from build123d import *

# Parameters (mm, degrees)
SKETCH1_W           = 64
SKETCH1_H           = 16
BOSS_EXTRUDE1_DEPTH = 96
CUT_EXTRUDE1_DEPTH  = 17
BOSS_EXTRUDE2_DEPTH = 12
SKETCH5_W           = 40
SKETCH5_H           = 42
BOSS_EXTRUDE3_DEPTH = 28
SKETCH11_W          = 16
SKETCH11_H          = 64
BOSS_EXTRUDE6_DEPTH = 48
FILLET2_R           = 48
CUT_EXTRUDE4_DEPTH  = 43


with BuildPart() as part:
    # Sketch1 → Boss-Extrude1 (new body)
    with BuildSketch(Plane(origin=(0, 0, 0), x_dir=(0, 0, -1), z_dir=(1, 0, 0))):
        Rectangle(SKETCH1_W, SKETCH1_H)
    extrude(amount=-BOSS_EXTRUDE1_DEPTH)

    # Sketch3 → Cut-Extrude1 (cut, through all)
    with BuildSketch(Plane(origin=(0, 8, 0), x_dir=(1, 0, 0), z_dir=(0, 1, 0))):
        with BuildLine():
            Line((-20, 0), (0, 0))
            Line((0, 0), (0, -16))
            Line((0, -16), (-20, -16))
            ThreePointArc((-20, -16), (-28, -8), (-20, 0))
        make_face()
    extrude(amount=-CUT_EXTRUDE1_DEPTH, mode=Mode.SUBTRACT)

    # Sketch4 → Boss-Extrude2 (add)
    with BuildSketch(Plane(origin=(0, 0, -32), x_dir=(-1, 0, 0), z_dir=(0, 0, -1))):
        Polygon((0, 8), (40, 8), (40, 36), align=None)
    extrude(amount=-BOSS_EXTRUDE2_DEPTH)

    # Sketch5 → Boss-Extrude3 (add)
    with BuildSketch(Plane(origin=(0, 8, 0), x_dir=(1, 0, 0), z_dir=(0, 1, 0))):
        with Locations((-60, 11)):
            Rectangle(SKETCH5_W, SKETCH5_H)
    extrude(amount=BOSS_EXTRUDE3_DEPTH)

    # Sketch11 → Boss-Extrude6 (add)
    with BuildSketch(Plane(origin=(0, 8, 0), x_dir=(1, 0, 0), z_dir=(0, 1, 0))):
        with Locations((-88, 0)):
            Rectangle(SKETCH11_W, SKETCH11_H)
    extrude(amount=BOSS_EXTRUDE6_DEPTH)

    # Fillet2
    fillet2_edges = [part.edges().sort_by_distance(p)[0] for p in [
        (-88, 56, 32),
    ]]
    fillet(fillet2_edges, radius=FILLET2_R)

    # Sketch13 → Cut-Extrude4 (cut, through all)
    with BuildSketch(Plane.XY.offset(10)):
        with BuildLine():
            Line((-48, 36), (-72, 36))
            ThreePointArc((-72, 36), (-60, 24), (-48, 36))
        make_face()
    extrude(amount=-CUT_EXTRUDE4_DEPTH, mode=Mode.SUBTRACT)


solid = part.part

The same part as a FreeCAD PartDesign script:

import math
import FreeCAD as App
import Part
import Sketcher
from FreeCAD import Vector


def edges_at(feature, points):
    """Names of the edges that pass closest to the given points."""
    edges = feature.Shape.Edges
    near = lambda p: min(range(len(edges)), key=lambda i: edges[i].distToShape(Part.Vertex(*p))[0])
    return sorted({f"Edge{near(p) + 1}" for p in points})


def add_polygon(sketch, points):
    """Adds a closed chain of lines whose ends are joined by coincident constraints."""
    first, n = sketch.GeometryCount, len(points)
    for a, b in zip(points, points[1:] + points[:1]):
        sketch.addGeometry(Part.LineSegment(App.Vector(*a, 0), App.Vector(*b, 0)), False)
    for i in range(n):
        sketch.addConstraint(Sketcher.Constraint("Coincident", first + i, 2, first + (i + 1) % n, 1))

doc = App.newDocument("Part")
body = doc.addObject("PartDesign::Body", "Body")

sketch1 = doc.addObject("Sketcher::SketchObject", "Sketch")
body.addObject(sketch1)
sketch1.AttachmentSupport = (doc.YZ_Plane, [""])
sketch1.MapMode = "FlatFace"
add_polygon(sketch1, [(8, 32), (-8, 32), (-8, -32), (8, -32)])
sketch1.addConstraint([
    Sketcher.Constraint("Horizontal", 0),
    Sketcher.Constraint("Vertical", 1),
    Sketcher.Constraint("Horizontal", 2),
    Sketcher.Constraint("Vertical", 3),
    Sketcher.Constraint("Symmetric", 0, 2, 2, 2, -1, 1),
    Sketcher.Constraint("DistanceX", 0, 2, 0, 1, 16.0),
    Sketcher.Constraint("DistanceY", 1, 2, 1, 1, 64.0),
])
pad1 = doc.addObject("PartDesign::Pad", "Pad")
body.addObject(pad1)
pad1.Profile = sketch1
pad1.Length = 96
pad1.Reversed = True

sketch2 = doc.addObject("Sketcher::SketchObject", "Sketch001")
body.addObject(sketch2)
sketch2.AttachmentSupport = (doc.XZ_Plane, [""])
sketch2.MapMode = "FlatFace"
sketch2.AttachmentOffset = App.Placement(Vector(0, 0, -8), App.Rotation())
sketch2.addGeometry([
    Part.LineSegment(Vector(0, 0, 0), Vector(-20, 0, 0)),
    Part.ArcOfCircle(Part.Circle(Vector(-20, 8, 0), Vector(0, 0, 1), 8), math.radians(90), math.radians(270)),
    Part.LineSegment(Vector(-20, 16, 0), Vector(0, 16, 0)),
    Part.LineSegment(Vector(0, 16, 0), Vector(0, 0, 0)),
], False)
sketch2.addConstraint([
    Sketcher.Constraint("Tangent", 0, 2, 1, 2),
    Sketcher.Constraint("Tangent", 1, 1, 2, 1),
    Sketcher.Constraint("Coincident", 2, 2, 3, 1),
    Sketcher.Constraint("Coincident", 3, 2, 0, 1),
    Sketcher.Constraint("Horizontal", 0),
    Sketcher.Constraint("Horizontal", 2),
    Sketcher.Constraint("Vertical", 3),
    Sketcher.Constraint("Coincident", 3, 2, -1, 1),
    Sketcher.Constraint("Radius", 1, 8.0),
    Sketcher.Constraint("DistanceX", 0, 2, 0, 1, 20.0),
])
pocket1 = doc.addObject("PartDesign::Pocket", "Pocket")
body.addObject(pocket1)
pocket1.Profile = sketch2
pocket1.Type = "ThroughAll"
pocket1.Reversed = True

sketch3 = doc.addObject("Sketcher::SketchObject", "Sketch002")
body.addObject(sketch3)
sketch3.AttachmentSupport = (doc.XY_Plane, [""])
sketch3.MapMode = "FlatFace"
sketch3.AttachmentOffset = App.Placement(Vector(0, 0, -32), App.Rotation())
add_polygon(sketch3, [(0, 8), (-40, 8), (-40, 36)])
sketch3.addConstraint([
    Sketcher.Constraint("Horizontal", 0),
    Sketcher.Constraint("Vertical", 1),
    Sketcher.Constraint("PointOnObject", 2, 2, -2),
    Sketcher.Constraint("DistanceX", 0, 2, 0, 1, 40.0),
    Sketcher.Constraint("DistanceY", 1, 1, 1, 2, 28.0),
    Sketcher.Constraint("DistanceY", -1, 1, 0, 2, 8.0),
])
pad2 = doc.addObject("PartDesign::Pad", "Pad001")
body.addObject(pad2)
pad2.Profile = sketch3
pad2.Length = 12

sketch4 = doc.addObject("Sketcher::SketchObject", "Sketch003")
body.addObject(sketch4)
sketch4.AttachmentSupport = (doc.XZ_Plane, [""])
sketch4.MapMode = "FlatFace"
sketch4.AttachmentOffset = App.Placement(Vector(0, 0, -8), App.Rotation())
add_polygon(sketch4, [(-80, -32), (-80, 10), (-40, 10), (-40, -32)])
sketch4.addConstraint([
    Sketcher.Constraint("Vertical", 0),
    Sketcher.Constraint("Horizontal", 1),
    Sketcher.Constraint("Vertical", 2),
    Sketcher.Constraint("Horizontal", 3),
    Sketcher.Constraint("DistanceX", 1, 1, 1, 2, 40.0),
    Sketcher.Constraint("DistanceY", 0, 1, 0, 2, 42.0),
    Sketcher.Constraint("DistanceX", 0, 2, -1, 1, 80.0),
    Sketcher.Constraint("DistanceY", -1, 1, 0, 2, 10.0),
])
pad3 = doc.addObject("PartDesign::Pad", "Pad002")
body.addObject(pad3)
pad3.Profile = sketch4
pad3.Length = 28
pad3.Reversed = True

sketch5 = doc.addObject("Sketcher::SketchObject", "Sketch004")
body.addObject(sketch5)
sketch5.AttachmentSupport = (doc.XZ_Plane, [""])
sketch5.MapMode = "FlatFace"
sketch5.AttachmentOffset = App.Placement(Vector(0, 0, -8), App.Rotation())
add_polygon(sketch5, [(-96, -32), (-96, 32), (-80, 32), (-80, -32)])
sketch5.addConstraint([
    Sketcher.Constraint("Vertical", 0),
    Sketcher.Constraint("Horizontal", 1),
    Sketcher.Constraint("Vertical", 2),
    Sketcher.Constraint("Horizontal", 3),
    Sketcher.Constraint("DistanceX", 1, 1, 1, 2, 16.0),
    Sketcher.Constraint("DistanceY", 0, 1, 0, 2, 64.0),
    Sketcher.Constraint("DistanceX", 0, 2, -1, 1, 96.0),
    Sketcher.Constraint("DistanceY", -1, 1, 0, 2, 32.0),
])
pad4 = doc.addObject("PartDesign::Pad", "Pad003")
body.addObject(pad4)
pad4.Profile = sketch5
pad4.Length = 48
pad4.Reversed = True
doc.recompute()

fillet = doc.addObject("PartDesign::Fillet", "Fillet")
body.addObject(fillet)
fillet.Base = (pad4, edges_at(pad4, [(-88, 56, 32)]))
fillet.Radius = 48

sketch6 = doc.addObject("Sketcher::SketchObject", "Sketch005")
body.addObject(sketch6)
sketch6.AttachmentSupport = (doc.XY_Plane, [""])
sketch6.MapMode = "FlatFace"
sketch6.AttachmentOffset = App.Placement(Vector(0, 0, 10), App.Rotation())
sketch6.addGeometry([
    Part.LineSegment(Vector(-48, 36, 0), Vector(-72, 36, 0)),
    Part.ArcOfCircle(Part.Circle(Vector(-60, 36, 0), Vector(0, 0, 1), 12), math.radians(180), math.radians(360)),
], False)
sketch6.addConstraint([
    Sketcher.Constraint("Coincident", 0, 1, 1, 2),
    Sketcher.Constraint("Coincident", 1, 1, 0, 2),
    Sketcher.Constraint("Horizontal", 0),
    Sketcher.Constraint("Horizontal", 1, 3, 0, 1),
    Sketcher.Constraint("Radius", 1, 12.0),
    Sketcher.Constraint("DistanceX", 1, 3, -1, 1, 60.0),
    Sketcher.Constraint("DistanceY", -1, 1, 1, 3, 36.0),
])
pocket2 = doc.addObject("PartDesign::Pocket", "Pocket001")
body.addObject(pocket2)
pocket2.Profile = sketch6
pocket2.Type = "ThroughAll"

doc.recompute()
